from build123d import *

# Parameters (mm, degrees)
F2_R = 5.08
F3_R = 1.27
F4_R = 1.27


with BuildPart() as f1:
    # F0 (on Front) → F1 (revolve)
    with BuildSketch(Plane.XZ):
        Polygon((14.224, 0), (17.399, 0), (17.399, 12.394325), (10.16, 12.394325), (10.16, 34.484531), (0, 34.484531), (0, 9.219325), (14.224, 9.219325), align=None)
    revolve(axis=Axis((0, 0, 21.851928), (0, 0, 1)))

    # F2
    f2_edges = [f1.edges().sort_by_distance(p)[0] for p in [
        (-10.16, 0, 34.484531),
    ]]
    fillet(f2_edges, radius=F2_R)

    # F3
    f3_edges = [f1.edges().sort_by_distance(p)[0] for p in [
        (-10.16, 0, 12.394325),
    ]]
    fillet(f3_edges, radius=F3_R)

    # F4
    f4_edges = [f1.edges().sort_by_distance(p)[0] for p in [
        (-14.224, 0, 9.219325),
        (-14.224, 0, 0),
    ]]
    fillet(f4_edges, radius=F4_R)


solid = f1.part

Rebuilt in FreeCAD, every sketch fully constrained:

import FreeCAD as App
import Part
import Sketcher

V = App.Vector
Q = App.Units.Quantity


def edges_at(feature, points):
    """Names of the edges that pass closest to the given points."""
    edges = feature.Shape.Edges
    near = lambda p: min(range(len(edges)), key=lambda i: edges[i].distToShape(Part.Vertex(*p))[0])
    return sorted({f"Edge{near(p) + 1}" for p in points})

doc = App.newDocument("Part")
body = doc.addObject("PartDesign::Body", "Body")

sketch1 = body.newObject("Sketcher::SketchObject", "Sketch")
sketch1.AttachmentSupport = (doc.getObject("XZ_Plane"), [""])
sketch1.MapMode = "FlatFace"
sketch1.addGeometry([
    Part.LineSegment(V(14.224, 0, 0), V(17.399, 0, 0)),
    Part.LineSegment(V(17.399, 0, 0), V(17.399, 12.394325, 0)),
    Part.LineSegment(V(17.399, 12.394325, 0), V(10.16, 12.394325, 0)),
    Part.LineSegment(V(10.16, 12.394325, 0), V(10.16, 34.484531, 0)),
    Part.LineSegment(V(10.16, 34.484531, 0), V(0, 34.484531, 0)),
    Part.LineSegment(V(0, 34.484531, 0), V(0, 9.219325, 0)),
    Part.LineSegment(V(0, 9.219325, 0), V(14.224, 9.219325, 0)),
    Part.LineSegment(V(14.224, 9.219325, 0), V(14.224, 0, 0)),
], False)
sketch1.addConstraint([
    Sketcher.Constraint("Coincident", 0, 2, 1, 1),
    Sketcher.Constraint("Coincident", 1, 2, 2, 1),
    Sketcher.Constraint("Coincident", 2, 2, 3, 1),
    Sketcher.Constraint("Coincident", 3, 2, 4, 1),
    Sketcher.Constraint("Coincident", 4, 2, 5, 1),
    Sketcher.Constraint("Coincident", 5, 2, 6, 1),
    Sketcher.Constraint("Coincident", 6, 2, 7, 1),
    Sketcher.Constraint("Coincident", 7, 2, 0, 1),
    Sketcher.Constraint("Horizontal", 0),
    Sketcher.Constraint("Vertical", 1),
    Sketcher.Constraint("Horizontal", 2),
    Sketcher.Constraint("Vertical", 3),
    Sketcher.Constraint("Horizontal", 4),
    Sketcher.Constraint("Vertical", 5),
    Sketcher.Constraint("Horizontal", 6),
    Sketcher.Constraint("Vertical", 7),
    Sketcher.Constraint("PointOnObject", 0, 2, -1),
    Sketcher.Constraint("PointOnObject", 4, 2, -2),
    Sketcher.Constraint("DistanceX", 4, 2, 4, 1, Q("0.4 in")),
    Sketcher.Constraint("DistanceX", 6, 1, 6, 2, Q("0.56 in")),
    Sketcher.Constraint("DistanceX", 0, 1, 0, 2, Q("0.125 in")),
    Sketcher.Constraint("DistanceY", 5, 2, 2, 2, Q("0.125 in")),
    Sketcher.Constraint("DistanceY", 1, 1, 1, 2, Q("12.394325 mm")),
    Sketcher.Constraint("DistanceY", 3, 1, 3, 2, Q("22.090206 mm")),
])
revolution = body.newObject("PartDesign::Revolution", "Revolution")
revolution.Profile = sketch1
revolution.ReferenceAxis = (sketch1, ["V_Axis"])
revolution.Angle = 360
doc.recompute()

fillet = body.newObject("PartDesign::Fillet", "Fillet")
fillet.Base = (revolution, edges_at(revolution, [(-10.16, 0, 34.485)]))
fillet.Radius = Q("0.2 in")
doc.recompute()

fillet2 = body.newObject("PartDesign::Fillet", "Fillet001")
fillet2.Base = (fillet, edges_at(fillet, [(-10.16, 0, 12.394)]))
fillet2.Radius = Q("0.05 in")
doc.recompute()

fillet3 = body.newObject("PartDesign::Fillet", "Fillet002")
fillet3.Base = (fillet2, edges_at(fillet2, [(-14.224, 0, 9.219), (-14.224, 0, 0)]))
fillet3.Radius = Q("0.05 in")

doc.recompute()
